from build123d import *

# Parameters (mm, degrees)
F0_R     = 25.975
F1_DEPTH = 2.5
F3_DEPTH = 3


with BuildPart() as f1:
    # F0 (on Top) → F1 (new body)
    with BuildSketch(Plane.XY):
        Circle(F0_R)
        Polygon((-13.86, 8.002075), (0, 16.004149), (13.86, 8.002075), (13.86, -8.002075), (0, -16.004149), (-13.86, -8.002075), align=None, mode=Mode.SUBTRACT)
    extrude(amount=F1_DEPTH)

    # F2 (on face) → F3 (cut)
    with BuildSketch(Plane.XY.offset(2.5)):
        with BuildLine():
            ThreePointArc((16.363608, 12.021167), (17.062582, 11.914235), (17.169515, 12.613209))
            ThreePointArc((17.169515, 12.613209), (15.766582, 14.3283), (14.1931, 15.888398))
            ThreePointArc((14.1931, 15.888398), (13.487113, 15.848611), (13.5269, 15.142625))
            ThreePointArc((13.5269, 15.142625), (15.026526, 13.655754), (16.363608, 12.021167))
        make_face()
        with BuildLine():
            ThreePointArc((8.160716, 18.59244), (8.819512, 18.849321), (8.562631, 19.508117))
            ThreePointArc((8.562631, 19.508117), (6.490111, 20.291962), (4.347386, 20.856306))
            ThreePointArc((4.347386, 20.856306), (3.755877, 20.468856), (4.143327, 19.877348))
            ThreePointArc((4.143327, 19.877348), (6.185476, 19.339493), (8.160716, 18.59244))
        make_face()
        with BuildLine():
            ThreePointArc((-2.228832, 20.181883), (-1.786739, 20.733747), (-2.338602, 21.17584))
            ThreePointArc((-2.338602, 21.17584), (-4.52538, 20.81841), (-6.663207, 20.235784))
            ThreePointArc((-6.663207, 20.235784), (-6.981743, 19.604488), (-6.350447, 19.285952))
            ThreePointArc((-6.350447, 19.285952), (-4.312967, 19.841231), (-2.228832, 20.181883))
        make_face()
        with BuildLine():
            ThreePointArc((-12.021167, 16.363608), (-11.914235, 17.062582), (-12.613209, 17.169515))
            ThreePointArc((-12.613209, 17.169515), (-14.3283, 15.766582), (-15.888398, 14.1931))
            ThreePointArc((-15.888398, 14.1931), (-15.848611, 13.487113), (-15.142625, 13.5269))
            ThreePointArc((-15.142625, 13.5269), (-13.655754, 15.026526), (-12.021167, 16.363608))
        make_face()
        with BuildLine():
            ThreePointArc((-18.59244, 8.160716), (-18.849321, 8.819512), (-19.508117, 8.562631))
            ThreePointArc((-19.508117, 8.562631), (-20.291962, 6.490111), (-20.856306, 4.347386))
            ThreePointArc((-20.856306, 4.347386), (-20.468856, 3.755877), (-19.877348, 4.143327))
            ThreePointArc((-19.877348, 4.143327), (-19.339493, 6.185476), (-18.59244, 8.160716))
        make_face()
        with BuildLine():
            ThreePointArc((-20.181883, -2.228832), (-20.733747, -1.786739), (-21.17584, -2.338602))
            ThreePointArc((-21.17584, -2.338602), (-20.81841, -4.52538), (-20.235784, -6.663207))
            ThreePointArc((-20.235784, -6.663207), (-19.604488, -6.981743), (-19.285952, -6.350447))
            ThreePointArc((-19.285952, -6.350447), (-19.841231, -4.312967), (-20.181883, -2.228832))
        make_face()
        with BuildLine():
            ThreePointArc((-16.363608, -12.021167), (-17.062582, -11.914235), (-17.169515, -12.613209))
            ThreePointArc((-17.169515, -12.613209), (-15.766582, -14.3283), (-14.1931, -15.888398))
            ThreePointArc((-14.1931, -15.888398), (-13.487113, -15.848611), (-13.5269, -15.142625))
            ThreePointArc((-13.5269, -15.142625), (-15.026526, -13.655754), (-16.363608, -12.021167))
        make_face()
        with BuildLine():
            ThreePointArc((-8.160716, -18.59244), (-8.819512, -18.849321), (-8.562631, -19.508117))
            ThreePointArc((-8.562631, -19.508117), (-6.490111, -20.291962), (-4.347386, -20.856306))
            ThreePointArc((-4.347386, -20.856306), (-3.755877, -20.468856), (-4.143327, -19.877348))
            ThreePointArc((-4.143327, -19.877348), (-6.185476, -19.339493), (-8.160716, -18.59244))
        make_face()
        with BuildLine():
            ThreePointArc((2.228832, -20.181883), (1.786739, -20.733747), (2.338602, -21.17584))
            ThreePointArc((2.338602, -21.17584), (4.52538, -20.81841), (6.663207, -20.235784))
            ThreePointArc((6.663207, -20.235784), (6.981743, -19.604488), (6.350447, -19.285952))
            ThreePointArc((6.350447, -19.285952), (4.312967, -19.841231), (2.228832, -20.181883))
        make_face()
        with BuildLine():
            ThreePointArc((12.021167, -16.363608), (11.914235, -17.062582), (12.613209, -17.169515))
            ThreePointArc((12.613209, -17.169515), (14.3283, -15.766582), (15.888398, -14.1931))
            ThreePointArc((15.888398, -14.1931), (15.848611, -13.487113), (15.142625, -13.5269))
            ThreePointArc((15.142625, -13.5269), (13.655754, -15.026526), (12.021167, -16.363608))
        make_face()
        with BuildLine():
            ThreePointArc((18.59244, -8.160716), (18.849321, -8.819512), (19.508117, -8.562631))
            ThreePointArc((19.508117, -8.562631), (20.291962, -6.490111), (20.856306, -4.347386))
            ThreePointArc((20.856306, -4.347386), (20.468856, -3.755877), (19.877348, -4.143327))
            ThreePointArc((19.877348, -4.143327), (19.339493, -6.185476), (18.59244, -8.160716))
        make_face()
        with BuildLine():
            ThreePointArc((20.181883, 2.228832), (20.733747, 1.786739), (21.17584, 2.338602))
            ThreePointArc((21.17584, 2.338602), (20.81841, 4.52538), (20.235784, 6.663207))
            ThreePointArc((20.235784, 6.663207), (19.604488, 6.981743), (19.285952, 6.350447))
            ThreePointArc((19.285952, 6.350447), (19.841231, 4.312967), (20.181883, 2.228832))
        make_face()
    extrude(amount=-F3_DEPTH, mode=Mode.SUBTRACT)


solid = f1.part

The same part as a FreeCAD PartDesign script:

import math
import FreeCAD as App
import Part
import Sketcher
from FreeCAD import Vector
Q = App.Units.Quantity


def add_polygon(sketch, points):
    """Adds a closed chain of lines whose ends are joined by coincident constraints."""
    first, n = sketch.GeometryCount, len(points)
    for a, b in zip(points, points[1:] + points[:1]):
        sketch.addGeometry(Part.LineSegment(App.Vector(*a, 0), App.Vector(*b, 0)), False)
    for i in range(n):
        sketch.addConstraint(Sketcher.Constraint("Coincident", first + i, 2, first + (i + 1) % n, 1))

doc = App.newDocument("Part")
body = doc.addObject("PartDesign::Body", "Body")

sketch1 = doc.addObject("Sketcher::SketchObject", "Sketch")
body.addObject(sketch1)
sketch1.AttachmentSupport = (doc.XY_Plane, [""])
sketch1.MapMode = "FlatFace"
sketch1.addGeometry(Part.Circle(Vector(0, 0, 0), Vector(0, 0, 1), 25.975), False)
add_polygon(sketch1, [(-13.86, -8.002075), (-13.86, 8.002075), (0, 16.004149), (13.86, 8.002075), (13.86, -8.002075), (0, -16.004149)])
sketch1.addConstraint(Sketcher.Constraint("Vertical", 1))
sketch1.addConstraint(Sketcher.Constraint("Vertical", 4))
sketch1.addConstraint(Sketcher.Constraint("Coincident", 0, 3, -1, 1))
sketch1.addConstraint(Sketcher.Constraint("Symmetric", 1, 2, 4, 2, -1, 1))
sketch1.addConstraint(Sketcher.Constraint("Symmetric", 2, 2, 5, 2, -1, 1))
sketch1.addConstraint(Sketcher.Constraint("PointOnObject", 2, 2, -2))
sketch1.addConstraint(Sketcher.Constraint("Parallel", 3, 6))
sketch1.addConstraint(Sketcher.Constraint("Horizontal", 1, 2, 3, 2))
sketch1.addConstraint(Sketcher.Constraint("Diameter", 0, Q("51.95 mm")))
sketch1.addConstraint(Sketcher.Constraint("Angle", 2, Q("29.999998 deg")))
sketch1.addConstraint(Sketcher.Constraint("DistanceX", 1, 2, -1, 1, Q("13.86 mm")))
sketch1.addConstraint(Sketcher.Constraint("DistanceY", 1, 1, 1, 2, Q("16.00415 mm")))
pad1 = doc.addObject("PartDesign::Pad", "Pad")
body.addObject(pad1)
pad1.Profile = sketch1
pad1.Length = 2.5

sketch2 = doc.addObject("Sketcher::SketchObject", "Sketch001")
body.addObject(sketch2)
sketch2.AttachmentSupport = (doc.XY_Plane, [""])
sketch2.MapMode = "FlatFace"
sketch2.AttachmentOffset = App.Placement(Vector(0, 0, 2.5), App.Rotation())
sketch2.addGeometry(Part.ArcOfCircle(Part.Circle(Vector(16.766561, 12.317189, 0), Vector(0, 0, 1), 0.5), math.radians(-143.697867), math.radians(36.301973)), False)
sketch2.addGeometry(Part.ArcOfCircle(Part.Circle(Vector(0.000021, 0.000018, 0), Vector(0, 0, 1), 21.304557), math.radians(36.302046), math.radians(48.225607)), False)
sketch2.addGeometry(Part.ArcOfCircle(Part.Circle(Vector(13.86, 15.515512, 0), Vector(0, 0, 1), 0.5), math.radians(48.225538), math.radians(228.225548)), False)
sketch2.addGeometry(Part.ArcOfCircle(Part.Circle(Vector(-0.000061, -0.000056, 0), Vector(0, 0, 1), 20.304666), math.radians(36.302078), math.radians(48.225577)), False)
sketch2.addGeometry(Part.ArcOfCircle(Part.Circle(Vector(8.361674, 19.050279, 0), Vector(0, 0, 1), 0.5), math.radians(-113.697949), math.radians(66.302051)), False)
sketch2.addGeometry(Part.ArcOfCircle(Part.Circle(Vector(-0.000011, -0.000038, 0), Vector(0, 0, 1), 21.304623), math.radians(66.302068), math.radians(78.22559)), False)
sketch2.addGeometry(Part.ArcOfCircle(Part.Circle(Vector(4.245356, 20.366827, 0), Vector(0, 0, 1), 0.5), math.radians(78.225529), math.radians(258.225618)), False)
sketch2.addGeometry(Part.ArcOfCircle(Part.Circle(Vector(-0.00002, -0.000059, 0), Vector(0, 0, 1), 20.304645), math.radians(66.302067), math.radians(78.225576)), False)
sketch2.addGeometry(Part.ArcOfCircle(Part.Circle(Vector(-2.283717, 20.678861, 0), Vector(0, 0, 1), 0.5), math.radians(-83.697892), math.radians(96.302007)), False)
sketch2.addGeometry(Part.ArcOfCircle(Part.Circle(Vector(0.000008, -0.000048, 0), Vector(0, 0, 1), 21.304632), math.radians(96.302058), math.radians(108.225578)), False)
sketch2.addGeometry(Part.ArcOfCircle(Part.Circle(Vector(-6.506827, 19.760868, 0), Vector(0, 0, 1), 0.5), math.radians(108.225643), math.radians(288.225643)), False)
sketch2.addGeometry(Part.ArcOfCircle(Part.Circle(Vector(-0.000027, 0.000108, 0), Vector(0, 0, 1), 20.304473), math.radians(96.302009), math.radians(108.22562)), False)
sketch2.addGeometry(Part.ArcOfCircle(Part.Circle(Vector(-12.317189, 16.766561, 0), Vector(0, 0, 1), 0.5), math.radians(-53.697867), math.radians(126.301973)), False)
sketch2.addGeometry(Part.ArcOfCircle(Part.Circle(Vector(-0.000018, 0.000021, 0), Vector(0, 0, 1), 21.304557), math.radians(126.302046), math.radians(138.225607)), False)
sketch2.addGeometry(Part.ArcOfCircle(Part.Circle(Vector(-15.515512, 13.86, 0), Vector(0, 0, 1), 0.5), math.radians(138.225538), math.radians(318.225548)), False)
sketch2.addGeometry(Part.ArcOfCircle(Part.Circle(Vector(0.000056, -0.000061, 0), Vector(0, 0, 1), 20.304666), math.radians(126.302078), math.radians(138.225577)), False)
sketch2.addGeometry(Part.ArcOfCircle(Part.Circle(Vector(-19.050279, 8.361674, 0), Vector(0, 0, 1), 0.5), math.radians(-23.697949), math.radians(156.302051)), False)
sketch2.addGeometry(Part.ArcOfCircle(Part.Circle(Vector(0.000038, -0.000011, 0), Vector(0, 0, 1), 21.304623), math.radians(156.302068), math.radians(168.22559)), False)
sketch2.addGeometry(Part.ArcOfCircle(Part.Circle(Vector(-20.366827, 4.245356, 0), Vector(0, 0, 1), 0.5), math.radians(168.225529), math.radians(348.225618)), False)
sketch2.addGeometry(Part.ArcOfCircle(Part.Circle(Vector(0.000059, -0.00002, 0), Vector(0, 0, 1), 20.304645), math.radians(156.302067), math.radians(168.225576)), False)
sketch2.addGeometry(Part.ArcOfCircle(Part.Circle(Vector(-20.678861, -2.283717, 0), Vector(0, 0, 1), 0.5), math.radians(6.302108), math.radians(186.302007)), False)
sketch2.addGeometry(Part.ArcOfCircle(Part.Circle(Vector(0.000048, 0.000008, 0), Vector(0, 0, 1), 21.304632), math.radians(-173.697942), math.radians(-161.774422)), False)
sketch2.addGeometry(Part.ArcOfCircle(Part.Circle(Vector(-19.760868, -6.506827, 0), Vector(0, 0, 1), 0.5), math.radians(-161.774357), math.radians(18.225643)), False)
sketch2.addGeometry(Part.ArcOfCircle(Part.Circle(Vector(-0.000108, -0.000027, 0), Vector(0, 0, 1), 20.304473), math.radians(-173.697991), math.radians(-161.77438)), False)
sketch2.addGeometry(Part.ArcOfCircle(Part.Circle(Vector(-16.766561, -12.317189, 0), Vector(0, 0, 1), 0.5), math.radians(36.302133), math.radians(216.301973)), False)
sketch2.addGeometry(Part.ArcOfCircle(Part.Circle(Vector(-0.000021, -0.000018, 0), Vector(0, 0, 1), 21.304557), math.radians(-143.697954), math.radians(-131.774393)), False)
sketch2.addGeometry(Part.ArcOfCircle(Part.Circle(Vector(-13.86, -15.515512, 0), Vector(0, 0, 1), 0.5), math.radians(-131.774462), math.radians(48.225548)), False)
sketch2.addGeometry(Part.ArcOfCircle(Part.Circle(Vector(0.000061, 0.000056, 0), Vector(0, 0, 1), 20.304666), math.radians(-143.697922), math.radians(-131.774423)), False)
sketch2.addGeometry(Part.ArcOfCircle(Part.Circle(Vector(-8.361674, -19.050279, 0), Vector(0, 0, 1), 0.5), math.radians(66.302051), math.radians(246.302051)), False)
sketch2.addGeometry(Part.ArcOfCircle(Part.Circle(Vector(0.000011, 0.000038, 0), Vector(0, 0, 1), 21.304623), math.radians(-113.697932), math.radians(-101.77441)), False)
sketch2.addGeometry(Part.ArcOfCircle(Part.Circle(Vector(-4.245356, -20.366827, 0), Vector(0, 0, 1), 0.5), math.radians(-101.774471), math.radians(78.225618)), False)
sketch2.addGeometry(Part.ArcOfCircle(Part.Circle(Vector(0.00002, 0.000059, 0), Vector(0, 0, 1), 20.304645), math.radians(-113.697933), math.radians(-101.774424)), False)
sketch2.addGeometry(Part.ArcOfCircle(Part.Circle(Vector(2.283717, -20.678861, 0), Vector(0, 0, 1), 0.5), math.radians(96.302108), math.radians(276.302007)), False)
sketch2.addGeometry(Part.ArcOfCircle(Part.Circle(Vector(-0.000008, 0.000048, 0), Vector(0, 0, 1), 21.304632), math.radians(-83.697942), math.radians(-71.774422)), False)
sketch2.addGeometry(Part.ArcOfCircle(Part.Circle(Vector(6.506827, -19.760868, 0), Vector(0, 0, 1), 0.5), math.radians(-71.774357), math.radians(108.225643)), False)
sketch2.addGeometry(Part.ArcOfCircle(Part.Circle(Vector(0.000027, -0.000108, 0), Vector(0, 0, 1), 20.304473), math.radians(-83.697991), math.radians(-71.77438)), False)
sketch2.addGeometry(Part.ArcOfCircle(Part.Circle(Vector(12.317189, -16.766561, 0), Vector(0, 0, 1), 0.5), math.radians(126.302133), math.radians(306.301973)), False)
sketch2.addGeometry(Part.ArcOfCircle(Part.Circle(Vector(0.000018, -0.000021, 0), Vector(0, 0, 1), 21.304557), math.radians(-53.697954), math.radians(-41.774393)), False)
sketch2.addGeometry(Part.ArcOfCircle(Part.Circle(Vector(15.515512, -13.86, 0), Vector(0, 0, 1), 0.5), math.radians(-41.774462), math.radians(138.225548)), False)
sketch2.addGeometry(Part.ArcOfCircle(Part.Circle(Vector(-0.000056, 0.000061, 0), Vector(0, 0, 1), 20.304666), math.radians(-53.697922), math.radians(-41.774423)), False)
sketch2.addGeometry(Part.ArcOfCircle(Part.Circle(Vector(19.050279, -8.361674, 0), Vector(0, 0, 1), 0.5), math.radians(156.302051), math.radians(336.302051)), False)
sketch2.addGeometry(Part.ArcOfCircle(Part.Circle(Vector(-0.000038, 0.000011, 0), Vector(0, 0, 1), 21.304623), math.radians(-23.697932), math.radians(-11.77441)), False)
sketch2.addGeometry(Part.ArcOfCircle(Part.Circle(Vector(20.366827, -4.245356, 0), Vector(0, 0, 1), 0.5), math.radians(-11.774471), math.radians(168.225618)), False)
sketch2.addGeometry(Part.ArcOfCircle(Part.Circle(Vector(-0.000059, 0.00002, 0), Vector(0, 0, 1), 20.304645), math.radians(-23.697933), math.radians(-11.774424)), False)
sketch2.addGeometry(Part.ArcOfCircle(Part.Circle(Vector(20.678861, 2.283717, 0), Vector(0, 0, 1), 0.5), math.radians(-173.697892), math.radians(6.302007)), False)
sketch2.addGeometry(Part.ArcOfCircle(Part.Circle(Vector(-0.000048, -0.000008, 0), Vector(0, 0, 1), 21.304632), math.radians(6.302058), math.radians(18.225578)), False)
sketch2.addGeometry(Part.ArcOfCircle(Part.Circle(Vector(19.760868, 6.506827, 0), Vector(0, 0, 1), 0.5), math.radians(18.225643), math.radians(198.225643)), False)
sketch2.addGeometry(Part.ArcOfCircle(Part.Circle(Vector(0.000108, 0.000027, 0), Vector(0, 0, 1), 20.304473), math.radians(6.302009), math.radians(18.22562)), False)
sketch2.addConstraint(Sketcher.Constraint("Tangent", 0, 2, 1, 1))
sketch2.addConstraint(Sketcher.Constraint("Tangent", 1, 2, 2, 1))
sketch2.addConstraint(Sketcher.Constraint("Tangent", 2, 2, 3, 2))
sketch2.addConstraint(Sketcher.Constraint("Tangent", 3, 1, 0, 1))
sketch2.addConstraint(Sketcher.Constraint("Tangent", 4, 2, 5, 1))
sketch2.addConstraint(Sketcher.Constraint("Tangent", 5, 2, 6, 1))
sketch2.addConstraint(Sketcher.Constraint("Tangent", 6, 2, 7, 2))
sketch2.addConstraint(Sketcher.Constraint("Tangent", 7, 1, 4, 1))
sketch2.addConstraint(Sketcher.Constraint("Tangent", 8, 2, 9, 1))
sketch2.addConstraint(Sketcher.Constraint("Tangent", 9, 2, 10, 1))
sketch2.addConstraint(Sketcher.Constraint("Tangent", 10, 2, 11, 2))
sketch2.addConstraint(Sketcher.Constraint("Tangent", 11, 1, 8, 1))
sketch2.addConstraint(Sketcher.Constraint("Tangent", 12, 2, 13, 1))
sketch2.addConstraint(Sketcher.Constraint("Tangent", 13, 2, 14, 1))
sketch2.addConstraint(Sketcher.Constraint("Tangent", 14, 2, 15, 2))
sketch2.addConstraint(Sketcher.Constraint("Tangent", 15, 1, 12, 1))
sketch2.addConstraint(Sketcher.Constraint("Tangent", 16, 2, 17, 1))
sketch2.addConstraint(Sketcher.Constraint("Tangent", 17, 2, 18, 1))
sketch2.addConstraint(Sketcher.Constraint("Tangent", 18, 2, 19, 2))
sketch2.addConstraint(Sketcher.Constraint("Tangent", 19, 1, 16, 1))
sketch2.addConstraint(Sketcher.Constraint("Tangent", 20, 2, 21, 1))
sketch2.addConstraint(Sketcher.Constraint("Tangent", 21, 2, 22, 1))
sketch2.addConstraint(Sketcher.Constraint("Tangent", 22, 2, 23, 2))
sketch2.addConstraint(Sketcher.Constraint("Tangent", 23, 1, 20, 1))
sketch2.addConstraint(Sketcher.Constraint("Tangent", 24, 2, 25, 1))
sketch2.addConstraint(Sketcher.Constraint("Tangent", 25, 2, 26, 1))
sketch2.addConstraint(Sketcher.Constraint("Tangent", 26, 2, 27, 2))
sketch2.addConstraint(Sketcher.Constraint("Tangent", 27, 1, 24, 1))
sketch2.addConstraint(Sketcher.Constraint("Tangent", 28, 2, 29, 1))
sketch2.addConstraint(Sketcher.Constraint("Tangent", 29, 2, 30, 1))
sketch2.addConstraint(Sketcher.Constraint("Tangent", 30, 2, 31, 2))
sketch2.addConstraint(Sketcher.Constraint("Tangent", 31, 1, 28, 1))
sketch2.addConstraint(Sketcher.Constraint("Tangent", 32, 2, 33, 1))
sketch2.addConstraint(Sketcher.Constraint("Tangent", 33, 2, 34, 1))
sketch2.addConstraint(Sketcher.Constraint("Tangent", 34, 2, 35, 2))
sketch2.addConstraint(Sketcher.Constraint("Tangent", 35, 1, 32, 1))
sketch2.addConstraint(Sketcher.Constraint("Tangent", 36, 2, 37, 1))
sketch2.addConstraint(Sketcher.Constraint("Tangent", 37, 2, 38, 1))
sketch2.addConstraint(Sketcher.Constraint("Tangent", 38, 2, 39, 2))
sketch2.addConstraint(Sketcher.Constraint("Tangent", 39, 1, 36, 1))
sketch2.addConstraint(Sketcher.Constraint("Tangent", 40, 2, 41, 1))
sketch2.addConstraint(Sketcher.Constraint("Tangent", 41, 2, 42, 1))
sketch2.addConstraint(Sketcher.Constraint("Tangent", 42, 2, 43, 2))
sketch2.addConstraint(Sketcher.Constraint("Tangent", 43, 1, 40, 1))
sketch2.addConstraint(Sketcher.Constraint("Tangent", 44, 2, 45, 1))
sketch2.addConstraint(Sketcher.Constraint("Tangent", 45, 2, 46, 1))
sketch2.addConstraint(Sketcher.Constraint("Tangent", 46, 2, 47, 2))
sketch2.addConstraint(Sketcher.Constraint("Tangent", 47, 1, 44, 1))
sketch2.addConstraint(Sketcher.Constraint("Equal", 0, 2))
sketch2.addConstraint(Sketcher.Constraint("Equal", 2, 4))
sketch2.addConstraint(Sketcher.Constraint("Equal", 4, 6))
sketch2.addConstraint(Sketcher.Constraint("Equal", 6, 8))
sketch2.addConstraint(Sketcher.Constraint("Equal", 8, 10))
sketch2.addConstraint(Sketcher.Constraint("Equal", 10, 12))
sketch2.addConstraint(Sketcher.Constraint("Equal", 1, 13))
sketch2.addConstraint(Sketcher.Constraint("Equal", 12, 14))
sketch2.addConstraint(Sketcher.Constraint("Equal", 3, 15))
sketch2.addConstraint(Sketcher.Constraint("Equal", 14, 16))
sketch2.addConstraint(Sketcher.Constraint("Equal", 5, 17))
sketch2.addConstraint(Sketcher.Constraint("Equal", 16, 18))
sketch2.addConstraint(Sketcher.Constraint("Equal", 7, 19))
sketch2.addConstraint(Sketcher.Constraint("Equal", 18, 20))
sketch2.addConstraint(Sketcher.Constraint("Equal", 9, 21))
sketch2.addConstraint(Sketcher.Constraint("Equal", 20, 22))
sketch2.addConstraint(Sketcher.Constraint("Equal", 11, 23))
sketch2.addConstraint(Sketcher.Constraint("Equal", 22, 24))
sketch2.addConstraint(Sketcher.Constraint("Equal", 13, 25))
sketch2.addConstraint(Sketcher.Constraint("Equal", 24, 26))
sketch2.addConstraint(Sketcher.Constraint("Equal", 15, 27))
sketch2.addConstraint(Sketcher.Constraint("Equal", 26, 28))
sketch2.addConstraint(Sketcher.Constraint("Equal", 17, 29))
sketch2.addConstraint(Sketcher.Constraint("Equal", 28, 30))
sketch2.addConstraint(Sketcher.Constraint("Equal", 19, 31))
sketch2.addConstraint(Sketcher.Constraint("Equal", 30, 32))
sketch2.addConstraint(Sketcher.Constraint("Equal", 21, 33))
sketch2.addConstraint(Sketcher.Constraint("Equal", 32, 34))
sketch2.addConstraint(Sketcher.Constraint("Equal", 23, 35))
sketch2.addConstraint(Sketcher.Constraint("Equal", 34, 36))
sketch2.addConstraint(Sketcher.Constraint("Equal", 25, 37))
sketch2.addConstraint(Sketcher.Constraint("Equal", 36, 38))
sketch2.addConstraint(Sketcher.Constraint("Equal", 27, 39))
sketch2.addConstraint(Sketcher.Constraint("Equal", 38, 40))
sketch2.addConstraint(Sketcher.Constraint("Equal", 29, 41))
sketch2.addConstraint(Sketcher.Constraint("Equal", 40, 42))
sketch2.addConstraint(Sketcher.Constraint("Equal", 31, 43))
sketch2.addConstraint(Sketcher.Constraint("Equal", 42, 44))
sketch2.addConstraint(Sketcher.Constraint("Equal", 33, 45))
sketch2.addConstraint(Sketcher.Constraint("Equal", 44, 46))
sketch2.addConstraint(Sketcher.Constraint("Equal", 35, 47))
sketch2.addConstraint(Sketcher.Constraint("Symmetric", 0, 3, 24, 3, -1, 1))
sketch2.addConstraint(Sketcher.Constraint("Symmetric", 2, 3, 26, 3, -1, 1))
sketch2.addConstraint(Sketcher.Constraint("Symmetric", 4, 3, 28, 3, -1, 1))
sketch2.addConstraint(Sketcher.Constraint("Symmetric", 6, 3, 30, 3, -1, 1))
sketch2.addConstraint(Sketcher.Constraint("Symmetric", 8, 3, 32, 3, -1, 1))
sketch2.addConstraint(Sketcher.Constraint("Symmetric", 10, 3, 34, 3, -1, 1))
sketch2.addConstraint(Sketcher.Constraint("Symmetric", 12, 3, 36, 3, -1, 1))
sketch2.addConstraint(Sketcher.Constraint("Symmetric", 14, 3, 38, 3, -1, 1))
sketch2.addConstraint(Sketcher.Constraint("Symmetric", 16, 3, 40, 3, -1, 1))
sketch2.addConstraint(Sketcher.Constraint("Symmetric", 18, 3, 42, 3, -1, 1))
sketch2.addConstraint(Sketcher.Constraint("Symmetric", 20, 3, 44, 3, -1, 1))
sketch2.addConstraint(Sketcher.Constraint("Symmetric", 22, 3, 46, 3, -1, 1))
sketch2.addConstraint(Sketcher.Constraint("Symmetric", 1, 3, 13, 3, -2))
sketch2.addConstraint(Sketcher.Constraint("Horizontal", 19, 3, 37, 3))
sketch2.addConstraint(Sketcher.Constraint("Vertical", 7, 3, 25, 3))
sketch2.addConstraint(Sketcher.Constraint("Radius", 0, Q("0.5 mm")))
sketch2.addConstraint(Sketcher.Constraint("DistanceX", -1, 1, 2, 3, Q("13.86 mm")))
sketch2.addConstraint(Sketcher.Constraint("DistanceY", -1, 1, 14, 3, Q("13.86 mm")))
sketch2.addConstraint(Sketcher.Constraint("Radius", 9, Q("21.304632 mm")))
sketch2.addConstraint(Sketcher.Constraint("Radius", 1, Q("21.304557 mm")))
sketch2.addConstraint(Sketcher.Constraint("Radius", 3, Q("20.304666 mm")))
sketch2.addConstraint(Sketcher.Constraint("Radius", 5, Q("21.304623 mm")))
sketch2.addConstraint(Sketcher.Constraint("Radius", 7, Q("20.304645 mm")))
sketch2.addConstraint(Sketcher.Constraint("Radius", 11, Q("20.304473 mm")))
sketch2.addConstraint(Sketcher.Constraint("DistanceY", -1, 1, 1, 2, Q("15.888398 mm")))
sketch2.addConstraint(Sketcher.Constraint("DistanceX", -1, 1, 2, 2, Q("13.5269 mm")))
sketch2.addConstraint(Sketcher.Constraint("DistanceX", 8, 2, -1, 1, Q("2.338602 mm")))
sketch2.addConstraint(Sketcher.Constraint("DistanceY", 20, 2, -1, 1, Q("2.338602 mm")))
sketch2.addConstraint(Sketcher.Constraint("DistanceX", -1, 1, 0, 3, Q("16.766561 mm")))
sketch2.addConstraint(Sketcher.Constraint("DistanceY", -1, 1, 4, 3, Q("19.050279 mm")))
sketch2.addConstraint(Sketcher.Constraint("DistanceY", -1, 1, 8, 3, Q("20.678861 mm")))
sketch2.addConstraint(Sketcher.Constraint("DistanceX", 12, 3, -1, 1, Q("12.317189 mm")))
sketch2.addConstraint(Sketcher.Constraint("DistanceX", 16, 3, -1, 1, Q("19.050279 mm")))
sketch2.addConstraint(Sketcher.Constraint("DistanceX", 20, 3, -1, 1, Q("20.678861 mm")))
sketch2.addConstraint(Sketcher.Constraint("DistanceX", -1, 1, 4, 2, Q("8.562631 mm")))
sketch2.addConstraint(Sketcher.Constraint("DistanceY", -1, 1, 6, 2, Q("19.877348 mm")))
sketch2.addConstraint(Sketcher.Constraint("DistanceY", -1, 1, 16, 2, Q("8.562631 mm")))
sketch2.addConstraint(Sketcher.Constraint("DistanceX", 18, 2, -1, 1, Q("19.877348 mm")))
sketch2.addConstraint(Sketcher.Constraint("DistanceX", 8, 3, -1, 1, Q("2.283717 mm")))
sketch2.addConstraint(Sketcher.Constraint("DistanceX", 10, 3, -1, 1, Q("6.506827 mm")))
sketch2.addConstraint(Sketcher.Constraint("DistanceY", 20, 3, -1, 1, Q("2.283717 mm")))
sketch2.addConstraint(Sketcher.Constraint("DistanceX", 22, 3, -1, 1, Q("19.760868 mm")))
pocket1 = doc.addObject("PartDesign::Pocket", "Pocket")
body.addObject(pocket1)
pocket1.Profile = sketch2
pocket1.Length = 3

doc.recompute()
